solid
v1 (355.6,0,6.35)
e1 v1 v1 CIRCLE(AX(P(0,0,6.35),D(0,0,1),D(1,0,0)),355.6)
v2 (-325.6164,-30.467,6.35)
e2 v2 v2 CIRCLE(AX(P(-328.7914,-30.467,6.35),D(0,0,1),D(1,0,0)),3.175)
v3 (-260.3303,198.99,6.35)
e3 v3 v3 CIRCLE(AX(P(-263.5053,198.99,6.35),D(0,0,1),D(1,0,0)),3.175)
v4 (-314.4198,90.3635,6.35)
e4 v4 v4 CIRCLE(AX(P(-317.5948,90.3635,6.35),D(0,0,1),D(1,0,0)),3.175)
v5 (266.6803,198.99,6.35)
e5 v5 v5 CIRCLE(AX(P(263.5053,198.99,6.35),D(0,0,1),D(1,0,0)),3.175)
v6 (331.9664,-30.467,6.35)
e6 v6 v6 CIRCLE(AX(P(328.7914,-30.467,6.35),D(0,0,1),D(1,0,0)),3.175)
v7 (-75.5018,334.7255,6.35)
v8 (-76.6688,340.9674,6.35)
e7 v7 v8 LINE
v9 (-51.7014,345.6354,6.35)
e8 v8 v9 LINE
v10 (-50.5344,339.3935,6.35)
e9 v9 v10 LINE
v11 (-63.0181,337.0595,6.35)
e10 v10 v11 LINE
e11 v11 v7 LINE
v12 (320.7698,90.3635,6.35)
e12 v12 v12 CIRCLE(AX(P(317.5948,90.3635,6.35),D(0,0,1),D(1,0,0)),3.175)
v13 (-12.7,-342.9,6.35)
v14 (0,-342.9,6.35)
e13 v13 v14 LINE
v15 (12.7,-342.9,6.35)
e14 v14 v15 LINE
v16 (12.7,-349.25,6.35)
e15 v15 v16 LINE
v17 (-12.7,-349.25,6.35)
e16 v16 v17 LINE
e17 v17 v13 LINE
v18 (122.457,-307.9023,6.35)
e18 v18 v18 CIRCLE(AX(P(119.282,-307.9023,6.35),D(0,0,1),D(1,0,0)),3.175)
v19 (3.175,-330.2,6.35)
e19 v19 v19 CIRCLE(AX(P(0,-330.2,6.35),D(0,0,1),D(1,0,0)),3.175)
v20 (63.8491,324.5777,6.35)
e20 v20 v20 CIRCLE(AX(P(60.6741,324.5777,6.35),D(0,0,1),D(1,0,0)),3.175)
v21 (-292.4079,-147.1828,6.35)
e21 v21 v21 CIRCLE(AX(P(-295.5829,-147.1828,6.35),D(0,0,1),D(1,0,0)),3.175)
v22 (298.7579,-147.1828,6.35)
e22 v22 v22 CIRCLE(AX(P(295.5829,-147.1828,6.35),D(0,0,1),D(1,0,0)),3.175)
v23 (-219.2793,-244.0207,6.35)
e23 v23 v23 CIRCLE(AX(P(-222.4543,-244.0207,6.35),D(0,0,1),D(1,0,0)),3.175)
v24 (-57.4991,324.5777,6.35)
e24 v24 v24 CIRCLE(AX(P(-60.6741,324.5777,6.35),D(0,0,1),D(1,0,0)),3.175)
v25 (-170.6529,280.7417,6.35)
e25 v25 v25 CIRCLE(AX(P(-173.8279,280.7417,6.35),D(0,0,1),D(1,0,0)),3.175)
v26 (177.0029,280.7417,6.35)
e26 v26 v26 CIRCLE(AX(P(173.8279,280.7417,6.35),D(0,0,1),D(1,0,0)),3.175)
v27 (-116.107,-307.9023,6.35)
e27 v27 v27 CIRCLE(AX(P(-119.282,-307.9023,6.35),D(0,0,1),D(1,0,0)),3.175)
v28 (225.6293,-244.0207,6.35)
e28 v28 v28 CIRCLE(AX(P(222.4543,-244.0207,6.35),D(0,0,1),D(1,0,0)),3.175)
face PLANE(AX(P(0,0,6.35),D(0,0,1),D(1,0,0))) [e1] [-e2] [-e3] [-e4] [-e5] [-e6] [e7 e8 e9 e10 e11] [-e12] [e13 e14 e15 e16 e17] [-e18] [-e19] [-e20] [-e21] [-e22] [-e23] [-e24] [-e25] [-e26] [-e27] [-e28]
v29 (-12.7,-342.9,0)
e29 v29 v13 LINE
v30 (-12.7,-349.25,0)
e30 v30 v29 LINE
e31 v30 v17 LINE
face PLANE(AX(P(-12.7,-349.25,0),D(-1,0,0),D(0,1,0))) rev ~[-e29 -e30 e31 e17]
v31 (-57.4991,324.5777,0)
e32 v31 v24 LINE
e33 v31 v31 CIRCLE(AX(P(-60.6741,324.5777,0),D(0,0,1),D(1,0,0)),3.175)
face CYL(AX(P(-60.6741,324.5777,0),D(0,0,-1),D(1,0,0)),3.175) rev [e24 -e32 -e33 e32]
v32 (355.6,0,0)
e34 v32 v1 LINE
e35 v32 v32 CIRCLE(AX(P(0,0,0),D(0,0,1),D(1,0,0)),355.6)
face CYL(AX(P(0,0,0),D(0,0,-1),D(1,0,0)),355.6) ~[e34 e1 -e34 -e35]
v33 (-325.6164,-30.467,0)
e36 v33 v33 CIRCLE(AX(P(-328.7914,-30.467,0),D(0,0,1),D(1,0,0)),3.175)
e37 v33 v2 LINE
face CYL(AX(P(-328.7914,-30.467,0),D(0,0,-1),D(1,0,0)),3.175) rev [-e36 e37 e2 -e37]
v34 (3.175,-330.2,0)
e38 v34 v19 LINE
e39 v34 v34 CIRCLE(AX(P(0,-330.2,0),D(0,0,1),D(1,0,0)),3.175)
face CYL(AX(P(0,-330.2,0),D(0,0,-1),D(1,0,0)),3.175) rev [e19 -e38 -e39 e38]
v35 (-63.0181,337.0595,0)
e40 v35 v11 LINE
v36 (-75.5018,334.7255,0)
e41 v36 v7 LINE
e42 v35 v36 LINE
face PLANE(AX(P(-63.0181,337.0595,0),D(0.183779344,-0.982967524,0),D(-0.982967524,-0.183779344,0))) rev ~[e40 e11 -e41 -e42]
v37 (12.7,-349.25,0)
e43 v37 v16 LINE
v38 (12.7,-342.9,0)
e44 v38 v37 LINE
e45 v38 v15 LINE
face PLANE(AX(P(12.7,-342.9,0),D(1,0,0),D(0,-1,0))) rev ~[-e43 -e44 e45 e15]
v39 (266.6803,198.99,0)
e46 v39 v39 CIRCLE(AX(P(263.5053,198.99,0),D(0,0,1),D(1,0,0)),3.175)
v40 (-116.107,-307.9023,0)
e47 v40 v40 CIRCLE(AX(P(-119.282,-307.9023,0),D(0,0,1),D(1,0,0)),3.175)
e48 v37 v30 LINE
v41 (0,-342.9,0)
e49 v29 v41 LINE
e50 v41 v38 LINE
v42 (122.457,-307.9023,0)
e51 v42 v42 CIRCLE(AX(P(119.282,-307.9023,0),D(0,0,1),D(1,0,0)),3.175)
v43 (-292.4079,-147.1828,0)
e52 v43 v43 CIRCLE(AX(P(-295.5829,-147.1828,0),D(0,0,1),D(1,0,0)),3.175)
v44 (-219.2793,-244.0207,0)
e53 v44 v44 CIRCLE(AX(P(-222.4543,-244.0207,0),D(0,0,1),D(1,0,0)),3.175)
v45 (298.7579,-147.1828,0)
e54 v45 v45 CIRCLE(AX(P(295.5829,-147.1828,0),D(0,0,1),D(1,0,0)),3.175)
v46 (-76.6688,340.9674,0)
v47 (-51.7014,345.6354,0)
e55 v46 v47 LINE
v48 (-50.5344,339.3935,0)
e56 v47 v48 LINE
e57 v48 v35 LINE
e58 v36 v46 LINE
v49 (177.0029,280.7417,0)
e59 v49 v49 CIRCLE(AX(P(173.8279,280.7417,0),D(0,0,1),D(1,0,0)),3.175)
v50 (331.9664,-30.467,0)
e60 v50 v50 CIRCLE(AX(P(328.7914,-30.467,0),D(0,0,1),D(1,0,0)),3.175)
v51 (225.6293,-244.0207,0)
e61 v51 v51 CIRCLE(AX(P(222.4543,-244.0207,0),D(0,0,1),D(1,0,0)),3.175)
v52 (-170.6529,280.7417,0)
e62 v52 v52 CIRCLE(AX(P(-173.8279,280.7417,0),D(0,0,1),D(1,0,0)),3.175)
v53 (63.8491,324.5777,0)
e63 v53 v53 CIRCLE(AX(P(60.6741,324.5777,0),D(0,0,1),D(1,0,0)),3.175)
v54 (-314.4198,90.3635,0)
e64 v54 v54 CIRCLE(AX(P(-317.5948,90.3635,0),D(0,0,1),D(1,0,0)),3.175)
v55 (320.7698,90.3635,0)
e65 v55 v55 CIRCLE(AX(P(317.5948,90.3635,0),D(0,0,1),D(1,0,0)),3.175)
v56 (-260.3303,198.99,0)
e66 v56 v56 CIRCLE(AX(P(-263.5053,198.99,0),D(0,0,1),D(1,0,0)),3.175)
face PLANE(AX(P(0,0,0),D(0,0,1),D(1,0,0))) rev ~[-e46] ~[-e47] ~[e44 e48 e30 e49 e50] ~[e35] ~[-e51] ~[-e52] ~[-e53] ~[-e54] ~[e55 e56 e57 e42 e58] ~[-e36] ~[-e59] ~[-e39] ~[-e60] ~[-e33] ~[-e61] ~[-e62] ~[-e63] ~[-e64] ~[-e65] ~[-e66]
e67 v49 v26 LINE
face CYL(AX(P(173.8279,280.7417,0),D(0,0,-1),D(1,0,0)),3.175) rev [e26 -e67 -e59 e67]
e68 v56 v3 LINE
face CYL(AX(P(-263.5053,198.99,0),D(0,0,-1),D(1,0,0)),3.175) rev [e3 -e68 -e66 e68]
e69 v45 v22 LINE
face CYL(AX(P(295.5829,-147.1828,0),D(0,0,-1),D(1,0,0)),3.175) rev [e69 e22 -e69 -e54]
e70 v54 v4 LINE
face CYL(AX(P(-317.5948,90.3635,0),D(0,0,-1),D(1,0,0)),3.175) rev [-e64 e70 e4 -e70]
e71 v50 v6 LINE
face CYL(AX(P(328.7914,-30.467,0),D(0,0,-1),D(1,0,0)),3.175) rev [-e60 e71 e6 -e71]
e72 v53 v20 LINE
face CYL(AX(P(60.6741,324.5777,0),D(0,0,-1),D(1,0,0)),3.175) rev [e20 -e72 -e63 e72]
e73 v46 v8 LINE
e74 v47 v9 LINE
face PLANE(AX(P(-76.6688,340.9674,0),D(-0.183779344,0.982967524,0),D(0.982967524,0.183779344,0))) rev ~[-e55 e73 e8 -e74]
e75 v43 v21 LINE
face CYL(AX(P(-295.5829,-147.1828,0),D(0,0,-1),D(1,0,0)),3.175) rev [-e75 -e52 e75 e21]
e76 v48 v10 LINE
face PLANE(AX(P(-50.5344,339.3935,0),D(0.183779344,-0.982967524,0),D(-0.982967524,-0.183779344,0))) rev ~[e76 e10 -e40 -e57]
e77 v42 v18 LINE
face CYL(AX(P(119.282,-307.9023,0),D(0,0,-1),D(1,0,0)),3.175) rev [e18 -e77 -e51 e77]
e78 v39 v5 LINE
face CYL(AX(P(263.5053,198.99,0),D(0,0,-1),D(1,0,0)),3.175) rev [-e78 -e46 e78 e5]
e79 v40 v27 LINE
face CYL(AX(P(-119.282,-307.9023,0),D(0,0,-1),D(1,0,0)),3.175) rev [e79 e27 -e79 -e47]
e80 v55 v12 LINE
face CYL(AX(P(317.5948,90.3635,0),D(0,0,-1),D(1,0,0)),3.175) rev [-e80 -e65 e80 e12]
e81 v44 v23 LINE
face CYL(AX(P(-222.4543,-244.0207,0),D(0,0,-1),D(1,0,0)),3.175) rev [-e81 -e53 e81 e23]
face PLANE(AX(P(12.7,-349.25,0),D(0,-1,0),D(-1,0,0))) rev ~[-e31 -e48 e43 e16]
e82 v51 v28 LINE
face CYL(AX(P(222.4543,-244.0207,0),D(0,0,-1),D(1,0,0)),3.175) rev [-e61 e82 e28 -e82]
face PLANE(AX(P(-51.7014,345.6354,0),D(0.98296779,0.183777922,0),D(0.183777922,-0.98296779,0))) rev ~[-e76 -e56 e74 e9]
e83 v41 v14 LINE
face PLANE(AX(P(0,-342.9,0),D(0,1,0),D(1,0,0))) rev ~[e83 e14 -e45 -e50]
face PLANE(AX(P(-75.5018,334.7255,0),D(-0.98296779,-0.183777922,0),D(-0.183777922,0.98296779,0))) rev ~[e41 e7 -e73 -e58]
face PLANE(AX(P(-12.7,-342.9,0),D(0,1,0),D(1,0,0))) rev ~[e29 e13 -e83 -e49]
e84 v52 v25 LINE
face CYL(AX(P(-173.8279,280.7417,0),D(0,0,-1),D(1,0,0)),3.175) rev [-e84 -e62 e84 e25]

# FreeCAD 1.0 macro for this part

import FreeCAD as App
import Part
import Sketcher

V = App.Vector
Q = App.Units.Quantity


def add_polygon(sketch, points):
    """Adds a closed chain of lines whose ends are joined by coincident constraints."""
    first, n = sketch.GeometryCount, len(points)
    for a, b in zip(points, points[1:] + points[:1]):
        sketch.addGeometry(Part.LineSegment(App.Vector(*a, 0), App.Vector(*b, 0)), False)
    for i in range(n):
        sketch.addConstraint(Sketcher.Constraint("Coincident", first + i, 2, first + (i + 1) % n, 1))

doc = App.newDocument("Part")
body = doc.addObject("PartDesign::Body", "Body")

sketch1 = body.newObject("Sketcher::SketchObject", "Sketch")
sketch1.AttachmentSupport = (doc.getObject("XY_Plane"), [""])
sketch1.MapMode = "FlatFace"
sketch1.addGeometry(Part.Circle(V(0, 0, 0), V(0, 0, 1), 355.6), False)
sketch1.addGeometry(Part.Circle(V(-222.5, -244, 0), V(0, 0, 1), 3.2), False)
sketch1.addGeometry(Part.Circle(V(-119.3, -307.9, 0), V(0, 0, 1), 3.2), False)
sketch1.addGeometry(Part.Circle(V(-295.6, -147.2, 0), V(0, 0, 1), 3.2), False)
sketch1.addGeometry(Part.Circle(V(-328.8, -30.5, 0), V(0, 0, 1), 3.2), False)
add_polygon(sketch1, [(-12.7, -342.9), (12.7, -342.9), (12.7, -349.2), (-12.7, -349.2)])
sketch1.addGeometry(Part.Circle(V(0, -330.2, 0), V(0, 0, 1), 3.2), False)
sketch1.addGeometry(Part.Circle(V(119.3, -307.9, 0), V(0, 0, 1), 3.2), False)
sketch1.addGeometry(Part.Circle(V(222.5, -244, 0), V(0, 0, 1), 3.2), False)
sketch1.addGeometry(Part.Circle(V(295.6, -147.2, 0), V(0, 0, 1), 3.2), False)
sketch1.addGeometry(Part.Circle(V(328.8, -30.5, 0), V(0, 0, 1), 3.2), False)
sketch1.addGeometry(Part.Circle(V(-317.6, 90.4, 0), V(0, 0, 1), 3.2), False)
sketch1.addGeometry(Part.Circle(V(-263.5, 199, 0), V(0, 0, 1), 3.2), False)
sketch1.addGeometry(Part.Circle(V(-173.8, 280.7, 0), V(0, 0, 1), 3.2), False)
sketch1.addGeometry(Part.Circle(V(-60.7, 324.6, 0), V(0, 0, 1), 3.2), False)
add_polygon(sketch1, [(-50.5, 339.4), (-75.5, 334.7), (-76.7, 341), (-51.7, 345.6)])
sketch1.addGeometry(Part.Circle(V(317.6, 90.4, 0), V(0, 0, 1), 3.2), False)
sketch1.addGeometry(Part.Circle(V(60.7, 324.6, 0), V(0, 0, 1), 3.2), False)
sketch1.addGeometry(Part.Circle(V(173.8, 280.7, 0), V(0, 0, 1), 3.2), False)
sketch1.addGeometry(Part.Circle(V(263.5, 199, 0), V(0, 0, 1), 3.2), False)
sketch1.addConstraint([
    Sketcher.Constraint("Horizontal", 5),
    Sketcher.Constraint("Vertical", 6),
    Sketcher.Constraint("Horizontal", 7),
    Sketcher.Constraint("Vertical", 8),
    Sketcher.Constraint("Coincident", 0, 3, -1, 1),
    Sketcher.Constraint("Equal", 1, 2),
    Sketcher.Constraint("Equal", 2, 3),
    Sketcher.Constraint("Equal", 3, 4),
    Sketcher.Constraint("Equal", 4, 9),
    Sketcher.Constraint("Equal", 9, 10),
    Sketcher.Constraint("Equal", 10, 11),
    Sketcher.Constraint("Equal", 11, 12),
    Sketcher.Constraint("Equal", 12, 13),
    Sketcher.Constraint("Equal", 13, 14),
    Sketcher.Constraint("Equal", 14, 15),
    Sketcher.Constraint("Equal", 15, 16),
    Sketcher.Constraint("Equal", 16, 17),
    Sketcher.Constraint("Equal", 17, 22),
    Sketcher.Constraint("Equal", 22, 23),
    Sketcher.Constraint("Equal", 23, 24),
    Sketcher.Constraint("Equal", 24, 25),
    Sketcher.Constraint("Symmetric", 2, 3, 10, 3, -2),
    Sketcher.Constraint("Symmetric", 1, 3, 11, 3, -2),
    Sketcher.Constraint("Symmetric", 3, 3, 12, 3, -2),
    Sketcher.Constraint("Symmetric", 4, 3, 13, 3, -2),
    Sketcher.Constraint("Symmetric", 14, 3, 22, 3, -2),
    Sketcher.Constraint("Symmetric", 17, 3, 23, 3, -2),
    Sketcher.Constraint("Symmetric", 16, 3, 24, 3, -2),
    Sketcher.Constraint("Symmetric", 15, 3, 25, 3, -2),
    Sketcher.Constraint("PointOnObject", 9, 3, -2),
    Sketcher.Constraint("Perpendicular", 18, 19),
    Sketcher.Constraint("Perpendicular", 19, 20),
    Sketcher.Constraint("Perpendicular", 20, 21),
    Sketcher.Constraint("Diameter", 0, Q("28 in")),
    Sketcher.Constraint("Diameter", 1, Q("0.25 in")),
    Sketcher.Constraint("DistanceX", 5, 1, 5, 2, Q("1 in")),
    Sketcher.Constraint("Distance", 18, Q("1 in")),
    Sketcher.Constraint("DistanceY", 6, 2, 6, 1, Q("0.25 in")),
    Sketcher.Constraint("DistanceX", -1, 1, 5, 2, Q("0.5 in")),
    Sketcher.Constraint("DistanceY", 5, 2, 9, 3, Q("0.5 in")),
    Sketcher.Constraint("Distance", 19, Q("0.25 in")),
    Sketcher.Constraint("DistanceY", 9, 3, -1, 1, Q("13 in")),
    Sketcher.Constraint("Angle", 18, Q("-169.41 deg")),
    Sketcher.Constraint("DistanceX", 14, 3, 17, 3, Q("10.115 in")),
    Sketcher.Constraint("DistanceY", 3, 3, -1, 1, Q("5.7946 in")),
    Sketcher.Constraint("DistanceY", 4, 3, -1, 1, Q("1.1995 in")),
    Sketcher.Constraint("DistanceX", 18, 2, -1, 1, Q("2.9725 in")),
    Sketcher.Constraint("DistanceY", -1, 1, 20, 2, Q("13.6077 in")),
    Sketcher.Constraint("DistanceX", 1, 3, 2, 3, Q("4.0619 in")),
    Sketcher.Constraint("DistanceX", 4, 3, 1, 3, Q("4.1865 in")),
    Sketcher.Constraint("DistanceX", 4, 3, 14, 3, Q("0.4408 in")),
    Sketcher.Constraint("DistanceY", 4, 3, 14, 3, Q("4.7571 in")),
    Sketcher.Constraint("DistanceX", 14, 3, 3, 3, Q("0.8666 in")),
    Sketcher.Constraint("DistanceX", 14, 3, 15, 3, Q("2.1295 in")),
    Sketcher.Constraint("DistanceX", 15, 3, 16, 3, Q("3.5306 in")),
    Sketcher.Constraint("DistanceY", 14, 3, 16, 3, Q("7.4952 in")),
    Sketcher.Constraint("DistanceY", 15, 3, 17, 3, Q("4.9444 in")),
    Sketcher.Constraint("DistanceX", 17, 3, 23, 3, Q("4.7775 in")),
    Sketcher.Constraint("DistanceY", 17, 3, 21, 2, Q("0.5833 in")),
    Sketcher.Constraint("DistanceY", 1, 3, -1, 1, Q("244.0207 mm")),
    Sketcher.Constraint("DistanceY", 2, 3, -1, 1, Q("307.9023 mm")),
])
pad1 = body.newObject("PartDesign::Pad", "Pad")
pad1.Profile = sketch1
pad1.Length = Q("0.25 in")

doc.recompute()
